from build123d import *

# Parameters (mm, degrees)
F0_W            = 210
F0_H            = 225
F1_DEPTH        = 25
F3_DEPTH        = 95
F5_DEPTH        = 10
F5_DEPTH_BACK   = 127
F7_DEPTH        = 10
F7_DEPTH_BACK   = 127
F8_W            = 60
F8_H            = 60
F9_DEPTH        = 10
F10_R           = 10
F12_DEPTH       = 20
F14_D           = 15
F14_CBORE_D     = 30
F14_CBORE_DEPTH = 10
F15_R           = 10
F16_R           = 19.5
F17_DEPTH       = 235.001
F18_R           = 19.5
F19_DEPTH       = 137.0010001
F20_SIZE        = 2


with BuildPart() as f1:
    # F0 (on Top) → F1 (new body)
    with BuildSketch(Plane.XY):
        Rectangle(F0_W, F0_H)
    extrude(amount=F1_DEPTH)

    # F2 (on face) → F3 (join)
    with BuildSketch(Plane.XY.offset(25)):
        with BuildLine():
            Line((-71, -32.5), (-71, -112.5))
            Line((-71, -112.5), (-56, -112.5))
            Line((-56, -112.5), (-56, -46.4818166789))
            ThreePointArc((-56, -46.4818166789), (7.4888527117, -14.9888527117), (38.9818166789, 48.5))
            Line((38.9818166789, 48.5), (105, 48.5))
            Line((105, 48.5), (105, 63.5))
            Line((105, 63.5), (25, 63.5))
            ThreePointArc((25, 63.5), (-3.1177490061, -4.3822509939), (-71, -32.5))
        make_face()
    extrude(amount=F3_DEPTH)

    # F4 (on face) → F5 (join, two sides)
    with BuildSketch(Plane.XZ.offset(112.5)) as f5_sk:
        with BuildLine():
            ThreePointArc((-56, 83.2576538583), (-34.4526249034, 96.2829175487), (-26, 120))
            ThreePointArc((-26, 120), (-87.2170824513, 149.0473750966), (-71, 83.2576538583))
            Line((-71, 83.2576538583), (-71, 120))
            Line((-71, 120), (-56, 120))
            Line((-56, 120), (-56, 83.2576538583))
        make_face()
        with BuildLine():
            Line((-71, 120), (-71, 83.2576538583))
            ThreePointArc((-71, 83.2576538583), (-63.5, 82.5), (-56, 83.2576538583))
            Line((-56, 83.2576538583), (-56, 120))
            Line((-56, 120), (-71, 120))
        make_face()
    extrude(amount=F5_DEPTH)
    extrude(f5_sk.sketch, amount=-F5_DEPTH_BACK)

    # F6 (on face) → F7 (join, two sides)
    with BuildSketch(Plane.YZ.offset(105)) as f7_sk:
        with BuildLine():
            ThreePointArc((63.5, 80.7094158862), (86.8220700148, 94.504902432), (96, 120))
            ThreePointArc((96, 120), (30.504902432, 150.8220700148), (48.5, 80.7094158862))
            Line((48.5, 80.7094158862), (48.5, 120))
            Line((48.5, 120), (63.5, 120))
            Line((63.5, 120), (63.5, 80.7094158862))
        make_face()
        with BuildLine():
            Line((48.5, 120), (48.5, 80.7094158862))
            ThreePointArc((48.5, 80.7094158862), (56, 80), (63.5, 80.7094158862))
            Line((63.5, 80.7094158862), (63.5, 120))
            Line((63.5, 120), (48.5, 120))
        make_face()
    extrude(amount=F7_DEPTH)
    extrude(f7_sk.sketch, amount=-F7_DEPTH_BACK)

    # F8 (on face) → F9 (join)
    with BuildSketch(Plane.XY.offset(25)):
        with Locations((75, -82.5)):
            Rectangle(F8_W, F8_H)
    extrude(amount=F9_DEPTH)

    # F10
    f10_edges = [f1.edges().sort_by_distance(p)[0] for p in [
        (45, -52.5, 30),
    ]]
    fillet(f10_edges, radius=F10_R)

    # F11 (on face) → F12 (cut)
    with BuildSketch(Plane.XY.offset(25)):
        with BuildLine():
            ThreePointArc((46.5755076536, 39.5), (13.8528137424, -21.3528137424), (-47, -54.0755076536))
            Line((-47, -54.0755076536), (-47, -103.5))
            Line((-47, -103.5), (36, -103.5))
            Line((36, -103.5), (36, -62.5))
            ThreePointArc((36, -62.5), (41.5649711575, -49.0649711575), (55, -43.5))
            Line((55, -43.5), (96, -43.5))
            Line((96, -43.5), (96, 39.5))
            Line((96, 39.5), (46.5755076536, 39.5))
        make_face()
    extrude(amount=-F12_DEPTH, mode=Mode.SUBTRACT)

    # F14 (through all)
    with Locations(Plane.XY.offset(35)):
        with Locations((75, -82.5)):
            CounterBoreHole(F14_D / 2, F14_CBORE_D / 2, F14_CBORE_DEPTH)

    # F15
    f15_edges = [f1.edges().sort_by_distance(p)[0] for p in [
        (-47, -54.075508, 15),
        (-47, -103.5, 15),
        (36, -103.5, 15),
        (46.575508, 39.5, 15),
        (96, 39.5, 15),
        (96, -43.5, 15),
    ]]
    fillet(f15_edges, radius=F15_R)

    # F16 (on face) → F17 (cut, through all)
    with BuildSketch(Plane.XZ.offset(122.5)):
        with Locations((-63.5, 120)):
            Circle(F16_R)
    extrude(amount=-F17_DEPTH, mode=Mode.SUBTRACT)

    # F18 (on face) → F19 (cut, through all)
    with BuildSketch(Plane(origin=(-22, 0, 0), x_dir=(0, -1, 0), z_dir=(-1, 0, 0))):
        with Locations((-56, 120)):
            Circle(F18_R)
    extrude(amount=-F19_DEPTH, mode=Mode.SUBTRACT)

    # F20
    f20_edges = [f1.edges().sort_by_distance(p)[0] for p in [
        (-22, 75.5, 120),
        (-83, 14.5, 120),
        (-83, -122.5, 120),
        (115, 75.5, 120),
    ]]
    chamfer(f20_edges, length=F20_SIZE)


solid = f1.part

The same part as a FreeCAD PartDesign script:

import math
import FreeCAD as App
import Part
import Sketcher
from FreeCAD import Vector
Q = App.Units.Quantity


def edges_at(feature, points):
    """Names of the edges that pass closest to the given points."""
    edges = feature.Shape.Edges
    near = lambda p: min(range(len(edges)), key=lambda i: edges[i].distToShape(Part.Vertex(*p))[0])
    return sorted({f"Edge{near(p) + 1}" for p in points})


def add_polygon(sketch, points):
    """Adds a closed chain of lines whose ends are joined by coincident constraints."""
    first, n = sketch.GeometryCount, len(points)
    for a, b in zip(points, points[1:] + points[:1]):
        sketch.addGeometry(Part.LineSegment(App.Vector(*a, 0), App.Vector(*b, 0)), False)
    for i in range(n):
        sketch.addConstraint(Sketcher.Constraint("Coincident", first + i, 2, first + (i + 1) % n, 1))

doc = App.newDocument("Part")
body = doc.addObject("PartDesign::Body", "Body")

sketch1 = body.newObject("Sketcher::SketchObject", "Sketch")
sketch1.AttachmentSupport = (doc.getObject("XY_Plane"), [""])
sketch1.MapMode = "FlatFace"
add_polygon(sketch1, [(-105, 112), (-105, -112), (105, -112), (105, 112)])
sketch1.addConstraint([
    Sketcher.Constraint("Vertical", 0),
    Sketcher.Constraint("Horizontal", 1),
    Sketcher.Constraint("Vertical", 2),
    Sketcher.Constraint("Horizontal", 3),
    Sketcher.Constraint("Symmetric", 0, 2, 2, 2, -1, 1),
    Sketcher.Constraint("DistanceX", 1, 1, 1, 2, Q("210 mm")),
    Sketcher.Constraint("DistanceY", 0, 2, 0, 1, Q("225 mm")),
])
pad1 = body.newObject("PartDesign::Pad", "Pad")
pad1.Profile = sketch1
pad1.Length = 25

sketch2 = body.newObject("Sketcher::SketchObject", "Sketch001")
sketch2.AttachmentSupport = (doc.getObject("XY_Plane"), [""])
sketch2.MapMode = "FlatFace"
sketch2.AttachmentOffset = App.Placement(Vector(0, 0, 25), App.Rotation())
sketch2.addGeometry([
    Part.LineSegment(Vector(-71, -32, 0), Vector(-71, -112, 0)),
    Part.LineSegment(Vector(-71, -112, 0), Vector(-56, -112, 0)),
    Part.LineSegment(Vector(-56, -112, 0), Vector(-56, -46, 0)),
    Part.ArcOfCircle(Part.Circle(Vector(-71, 64, 0), Vector(0, 0, 1), 111), math.radians(-82), math.radians(-8)),
    Part.LineSegment(Vector(39, 48, 0), Vector(105, 48, 0)),
    Part.LineSegment(Vector(105, 48, 0), Vector(105, 64, 0)),
    Part.LineSegment(Vector(105, 64, 0), Vector(25, 64, 0)),
    Part.ArcOfCircle(Part.Circle(Vector(-71, 64, 0), Vector(0, 0, 1), 96), math.radians(-90), math.radians(0)),
], False)
sketch2.addConstraint([
    Sketcher.Constraint("Coincident", 0, 2, 1, 1),
    Sketcher.Constraint("Coincident", 1, 2, 2, 1),
    Sketcher.Constraint("Coincident", 2, 2, 3, 1),
    Sketcher.Constraint("Coincident", 3, 2, 4, 1),
    Sketcher.Constraint("Coincident", 4, 2, 5, 1),
    Sketcher.Constraint("Coincident", 5, 2, 6, 1),
    Sketcher.Constraint("Coincident", 6, 2, 7, 2),
    Sketcher.Constraint("Coincident", 7, 1, 0, 1),
    Sketcher.Constraint("Vertical", 0),
    Sketcher.Constraint("Horizontal", 1),
    Sketcher.Constraint("Vertical", 2),
    Sketcher.Constraint("Horizontal", 4),
    Sketcher.Constraint("Vertical", 5),
    Sketcher.Constraint("Horizontal", 6),
    Sketcher.Constraint("Coincident", 7, 3, 3, 3),
    Sketcher.Constraint("Horizontal", 7, 3, 5, 2),
    Sketcher.Constraint("Vertical", 7, 3, 0, 2),
    Sketcher.Constraint("Equal", 6, 0),
    Sketcher.Constraint("Equal", 4, 2),
    Sketcher.Constraint("Radius", 3, Q("111 mm")),
    Sketcher.Constraint("Radius", 7, Q("96 mm")),
    Sketcher.Constraint("DistanceX", 1, 1, 1, 2, Q("15 mm")),
    Sketcher.Constraint("DistanceX", 6, 2, 6, 1, Q("80 mm")),
    Sketcher.Constraint("DistanceX", 3, 3, -1, 1, Q("71 mm")),
    Sketcher.Constraint("DistanceY", -1, 1, 3, 3, Q("63.5 mm")),
])
pad2 = body.newObject("PartDesign::Pad", "Pad001")
pad2.Profile = sketch2
pad2.Length = 95

sketch3 = body.newObject("Sketcher::SketchObject", "Sketch002")
sketch3.AttachmentSupport = (doc.getObject("XZ_Plane"), [""])
sketch3.MapMode = "FlatFace"
sketch3.AttachmentOffset = App.Placement(Vector(0, 0, 112.5), App.Rotation())
sketch3.addGeometry([
    Part.ArcOfCircle(Part.Circle(Vector(-64, 120, 0), Vector(0, 0, 1), 38), math.radians(-78), math.radians(0)),
    Part.ArcOfCircle(Part.Circle(Vector(-64, 120, 0), Vector(0, 0, 1), 38), math.radians(0), math.radians(258)),
    Part.ArcOfCircle(Part.Circle(Vector(-64, 120, 0), Vector(0, 0, 1), 37), math.radians(-102), math.radians(-78)),
], False)
sketch3.addConstraint([
    Sketcher.Constraint("Tangent", 0, 2, 1, 1),
    Sketcher.Constraint("Tangent", 1, 2, 2, 1),
    Sketcher.Constraint("Tangent", 2, 2, 0, 1),
    Sketcher.Constraint("Horizontal", 2, 3, 0, 2),
    Sketcher.Constraint("Horizontal", 1, 2, 2, 2),
    Sketcher.Constraint("Radius", 0, Q("37.5 mm")),
    Sketcher.Constraint("DistanceY", -1, 1, 0, 3, Q("120 mm")),
    Sketcher.Constraint("DistanceX", 0, 2, -1, 1, Q("26 mm")),
    Sketcher.Constraint("DistanceX", 1, 2, -1, 1, Q("71 mm")),
])
pad3 = body.newObject("PartDesign::Pad", "Pad002")
pad3.Profile = sketch3
pad3.Type = "TwoLengths"
pad3.Length = 10
pad3.Length2 = 127

sketch4 = body.newObject("Sketcher::SketchObject", "Sketch003")
sketch4.AttachmentSupport = (doc.getObject("YZ_Plane"), [""])
sketch4.MapMode = "FlatFace"
sketch4.AttachmentOffset = App.Placement(Vector(0, 0, 105), App.Rotation())
sketch4.addGeometry([
    Part.ArcOfCircle(Part.Circle(Vector(56, 120, 0), Vector(0, 0, 1), 40), math.radians(-79), math.radians(0)),
    Part.ArcOfCircle(Part.Circle(Vector(56, 120, 0), Vector(0, 0, 1), 40), math.radians(0), math.radians(259)),
    Part.ArcOfCircle(Part.Circle(Vector(56, 120, 0), Vector(0, 0, 1), 40), math.radians(-101), math.radians(-79)),
], False)
sketch4.addConstraint([
    Sketcher.Constraint("Tangent", 0, 2, 1, 1),
    Sketcher.Constraint("Tangent", 1, 2, 2, 1),
    Sketcher.Constraint("Tangent", 2, 2, 0, 1),
    Sketcher.Constraint("Horizontal", 2, 3, 0, 2),
    Sketcher.Constraint("Horizontal", 1, 2, 2, 2),
    Sketcher.Constraint("Radius", 0, Q("40 mm")),
    Sketcher.Constraint("DistanceX", -1, 1, 0, 3, Q("56 mm")),
    Sketcher.Constraint("DistanceY", -1, 1, 0, 3, Q("120 mm")),
    Sketcher.Constraint("DistanceX", 1, 2, 2, 2, Q("15 mm")),
])
pad4 = body.newObject("PartDesign::Pad", "Pad003")
pad4.Profile = sketch4
pad4.Type = "TwoLengths"
pad4.Length = 10
pad4.Length2 = 127

sketch5 = body.newObject("Sketcher::SketchObject", "Sketch004")
sketch5.AttachmentSupport = (doc.getObject("XY_Plane"), [""])
sketch5.MapMode = "FlatFace"
sketch5.AttachmentOffset = App.Placement(Vector(0, 0, 25), App.Rotation())
add_polygon(sketch5, [(45, -52), (45, -112), (105, -112), (105, -52)])
sketch5.addConstraint([
    Sketcher.Constraint("Vertical", 0),
    Sketcher.Constraint("Horizontal", 1),
    Sketcher.Constraint("Vertical", 2),
    Sketcher.Constraint("Horizontal", 3),
    Sketcher.Constraint("Equal", 3, 0),
    Sketcher.Constraint("DistanceX", 1, 1, 1, 2, Q("60 mm")),
    Sketcher.Constraint("DistanceX", -1, 1, 0, 2, Q("45 mm")),
    Sketcher.Constraint("DistanceY", 0, 2, -1, 1, Q("112.5 mm")),
])
pad5 = body.newObject("PartDesign::Pad", "Pad004")
pad5.Profile = sketch5
pad5.Length = 10
doc.recompute()

fillet = body.newObject("PartDesign::Fillet", "Fillet")
fillet.Base = (pad5, edges_at(pad5, [(45, -52.5, 30)]))
fillet.Radius = 10

sketch6 = body.newObject("Sketcher::SketchObject", "Sketch005")
sketch6.AttachmentSupport = (doc.getObject("XY_Plane"), [""])
sketch6.MapMode = "FlatFace"
sketch6.AttachmentOffset = App.Placement(Vector(0, 0, 25), App.Rotation())
sketch6.addGeometry([
    Part.ArcOfCircle(Part.Circle(Vector(-71, 64, 0), Vector(0, 0, 1), 120), math.radians(-78), math.radians(-12)),
    Part.LineSegment(Vector(-47, -54, 0), Vector(-47, -104, 0)),
    Part.LineSegment(Vector(-47, -104, 0), Vector(36, -104, 0)),
    Part.LineSegment(Vector(36, -104, 0), Vector(36, -62, 0)),
    Part.ArcOfCircle(Part.Circle(Vector(55, -62, 0), Vector(0, 0, 1), 19), math.radians(90), math.radians(180)),
    Part.LineSegment(Vector(55, -44, 0), Vector(96, -44, 0)),
    Part.LineSegment(Vector(96, -44, 0), Vector(96, 40, 0)),
    Part.LineSegment(Vector(96, 40, 0), Vector(47, 40, 0)),
], False)
sketch6.addConstraint([
    Sketcher.Constraint("Coincident", 0, 1, 1, 1),
    Sketcher.Constraint("Coincident", 1, 2, 2, 1),
    Sketcher.Constraint("Coincident", 2, 2, 3, 1),
    Sketcher.Constraint("Tangent", 3, 2, 4, 2),
    Sketcher.Constraint("Tangent", 4, 1, 5, 1),
    Sketcher.Constraint("Coincident", 5, 2, 6, 1),
    Sketcher.Constraint("Coincident", 6, 2, 7, 1),
    Sketcher.Constraint("Coincident", 7, 2, 0, 2),
    Sketcher.Constraint("Vertical", 1),
    Sketcher.Constraint("Horizontal", 2),
    Sketcher.Constraint("Vertical", 3),
    Sketcher.Constraint("Horizontal", 5),
    Sketcher.Constraint("Vertical", 6),
    Sketcher.Constraint("Horizontal", 7),
    Sketcher.Constraint("Equal", 7, 1),
    Sketcher.Constraint("Equal", 5, 3),
    Sketcher.Constraint("Equal", 2, 6),
    Sketcher.Constraint("Radius", 0, Q("120 mm")),
    Sketcher.Constraint("Radius", 4, Q("19 mm")),
    Sketcher.Constraint("DistanceX", 2, 1, 2, 2, Q("83 mm")),
    Sketcher.Constraint("DistanceX", 5, 1, 5, 2, Q("41 mm")),
    Sketcher.Constraint("DistanceX", 0, 3, -1, 1, Q("71 mm")),
    Sketcher.Constraint("DistanceX", -1, 1, 4, 3, Q("55 mm")),
    Sketcher.Constraint("DistanceY", -1, 1, 0, 3, Q("63.5 mm")),
])
pocket1 = body.newObject("PartDesign::Pocket", "Pocket")
pocket1.Profile = sketch6
pocket1.Length = 20

sketch7 = body.newObject("Sketcher::SketchObject", "Sketch006")
sketch7.AttachmentSupport = (doc.getObject("XY_Plane"), [""])
sketch7.MapMode = "FlatFace"
sketch7.AttachmentOffset = App.Placement(Vector(0, 0, 35), App.Rotation())
sketch7.addGeometry(Part.Circle(Vector(75, -82, 0), Vector(0, 0, 1), 8), False)
sketch7.addConstraint([
    Sketcher.Constraint("Diameter", 0, Q("15 mm")),
    Sketcher.Constraint("DistanceX", -1, 1, 0, 3, Q("75 mm")),
    Sketcher.Constraint("DistanceY", 0, 3, -1, 1, Q("82.5 mm")),
])
doc.recompute()
hole = body.newObject("PartDesign::Hole", "Hole")
hole.Profile = sketch7
hole.ThreadType = "None"
hole.Diameter = 15
hole.DepthType = "ThroughAll"
hole.HoleCutType = "Counterbore"
hole.HoleCutDiameter = 30
hole.HoleCutDepth = 10
doc.recompute()

fillet2 = body.newObject("PartDesign::Fillet", "Fillet001")
fillet2.Base = (hole, edges_at(hole, [
    (-47, -54.076, 15),
    (-47, -103.5, 15),
    (36, -103.5, 15),
    (46.576, 39.5, 15),
    (96, 39.5, 15),
    (96, -43.5, 15),
]))
fillet2.Radius = 10

sketch8 = body.newObject("Sketcher::SketchObject", "Sketch007")
sketch8.AttachmentSupport = (doc.getObject("XZ_Plane"), [""])
sketch8.MapMode = "FlatFace"
sketch8.AttachmentOffset = App.Placement(Vector(0, 0, 122.5), App.Rotation())
sketch8.addGeometry(Part.Circle(Vector(-64, 120, 0), Vector(0, 0, 1), 20), False)
sketch8.addConstraint([
    Sketcher.Constraint("Diameter", 0, Q("39 mm")),
    Sketcher.Constraint("DistanceY", -1, 1, 0, 3, Q("120 mm")),
    Sketcher.Constraint("DistanceX", 0, 3, -1, 1, Q("63.5 mm")),
])
pocket2 = body.newObject("PartDesign::Pocket", "Pocket001")
pocket2.Profile = sketch8
pocket2.Type = "ThroughAll"

sketch9 = body.newObject("Sketcher::SketchObject", "Sketch008")
sketch9.AttachmentSupport = (doc.getObject("YZ_Plane"), [""])
sketch9.MapMode = "FlatFace"
sketch9.AttachmentOffset = App.Placement(Vector(0, 0, -22), App.Rotation())
sketch9.addGeometry(Part.Circle(Vector(56, 120, 0), Vector(0, 0, 1), 20), False)
sketch9.addConstraint([
    Sketcher.Constraint("Diameter", 0, Q("39 mm")),
    Sketcher.Constraint("DistanceX", -1, 1, 0, 3, Q("56 mm")),
    Sketcher.Constraint("DistanceY", -1, 1, 0, 3, Q("120 mm")),
])
pocket3 = body.newObject("PartDesign::Pocket", "Pocket002")
pocket3.Profile = sketch9
pocket3.Type = "ThroughAll"
pocket3.Reversed = True
doc.recompute()

chamfer = body.newObject("PartDesign::Chamfer", "Chamfer")
chamfer.Base = (pocket3, edges_at(pocket3, [
    (-22, 75.5, 120),
    (-83, 14.5, 120),
    (-83, -122.5, 120),
    (115, 75.5, 120),
]))
chamfer.Size = 2

doc.recompute()
